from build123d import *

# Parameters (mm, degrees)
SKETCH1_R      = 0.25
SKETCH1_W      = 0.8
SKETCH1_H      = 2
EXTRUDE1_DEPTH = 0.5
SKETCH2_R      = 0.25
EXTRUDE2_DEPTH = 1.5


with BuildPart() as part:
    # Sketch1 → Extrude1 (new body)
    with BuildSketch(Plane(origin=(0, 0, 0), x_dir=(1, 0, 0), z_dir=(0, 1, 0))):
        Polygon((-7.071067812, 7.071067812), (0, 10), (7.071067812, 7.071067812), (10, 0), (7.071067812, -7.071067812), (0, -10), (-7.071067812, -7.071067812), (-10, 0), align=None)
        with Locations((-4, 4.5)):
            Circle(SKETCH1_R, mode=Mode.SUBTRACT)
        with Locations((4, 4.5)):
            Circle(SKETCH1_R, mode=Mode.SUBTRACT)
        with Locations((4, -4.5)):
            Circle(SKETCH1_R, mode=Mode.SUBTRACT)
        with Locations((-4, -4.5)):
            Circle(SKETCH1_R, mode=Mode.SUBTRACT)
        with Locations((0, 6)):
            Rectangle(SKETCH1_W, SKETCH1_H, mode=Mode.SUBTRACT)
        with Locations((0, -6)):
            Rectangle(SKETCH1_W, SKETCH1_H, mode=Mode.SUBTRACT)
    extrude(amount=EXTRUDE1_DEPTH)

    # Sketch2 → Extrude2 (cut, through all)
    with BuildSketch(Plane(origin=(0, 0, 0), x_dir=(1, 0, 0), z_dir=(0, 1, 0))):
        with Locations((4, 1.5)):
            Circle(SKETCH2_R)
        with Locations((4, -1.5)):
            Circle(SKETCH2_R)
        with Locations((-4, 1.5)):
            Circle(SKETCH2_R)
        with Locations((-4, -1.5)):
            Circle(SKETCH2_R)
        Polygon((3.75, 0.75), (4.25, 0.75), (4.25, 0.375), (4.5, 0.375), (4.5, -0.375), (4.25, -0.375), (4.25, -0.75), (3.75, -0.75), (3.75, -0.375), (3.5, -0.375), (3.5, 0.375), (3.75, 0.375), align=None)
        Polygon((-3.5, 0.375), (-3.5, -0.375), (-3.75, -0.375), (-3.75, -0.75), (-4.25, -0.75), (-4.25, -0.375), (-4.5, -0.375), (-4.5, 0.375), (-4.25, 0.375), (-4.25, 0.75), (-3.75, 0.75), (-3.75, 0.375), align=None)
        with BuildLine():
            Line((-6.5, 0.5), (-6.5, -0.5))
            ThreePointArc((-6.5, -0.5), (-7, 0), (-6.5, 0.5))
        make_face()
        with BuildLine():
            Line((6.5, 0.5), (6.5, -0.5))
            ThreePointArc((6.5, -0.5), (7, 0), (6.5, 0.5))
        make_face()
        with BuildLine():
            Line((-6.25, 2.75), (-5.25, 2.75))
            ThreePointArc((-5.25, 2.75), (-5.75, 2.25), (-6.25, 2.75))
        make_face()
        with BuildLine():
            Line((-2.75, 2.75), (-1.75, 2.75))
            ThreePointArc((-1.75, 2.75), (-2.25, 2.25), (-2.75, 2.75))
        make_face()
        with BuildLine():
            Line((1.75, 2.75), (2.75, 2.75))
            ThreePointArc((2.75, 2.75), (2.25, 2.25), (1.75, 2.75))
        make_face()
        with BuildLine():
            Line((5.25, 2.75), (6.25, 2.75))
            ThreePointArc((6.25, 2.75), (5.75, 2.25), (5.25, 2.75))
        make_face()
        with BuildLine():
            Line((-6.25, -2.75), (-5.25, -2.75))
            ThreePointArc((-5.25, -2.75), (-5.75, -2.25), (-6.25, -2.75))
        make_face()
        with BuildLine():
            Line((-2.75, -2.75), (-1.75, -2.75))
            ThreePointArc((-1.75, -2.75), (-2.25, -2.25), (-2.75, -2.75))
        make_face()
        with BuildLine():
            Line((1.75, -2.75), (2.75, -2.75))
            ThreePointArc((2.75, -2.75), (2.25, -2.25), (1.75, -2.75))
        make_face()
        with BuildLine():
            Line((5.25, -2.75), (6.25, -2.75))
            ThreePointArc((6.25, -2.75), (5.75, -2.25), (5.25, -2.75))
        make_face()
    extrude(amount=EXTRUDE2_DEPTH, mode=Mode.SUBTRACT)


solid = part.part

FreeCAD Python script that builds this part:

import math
import FreeCAD as App
import Part
import Sketcher
from FreeCAD import Vector
Q = App.Units.Quantity


def add_polygon(sketch, points):
    """Adds a closed chain of lines whose ends are joined by coincident constraints."""
    first, n = sketch.GeometryCount, len(points)
    for a, b in zip(points, points[1:] + points[:1]):
        sketch.addGeometry(Part.LineSegment(App.Vector(*a, 0), App.Vector(*b, 0)), False)
    for i in range(n):
        sketch.addConstraint(Sketcher.Constraint("Coincident", first + i, 2, first + (i + 1) % n, 1))

doc = App.newDocument("Part")
body = doc.addObject("PartDesign::Body", "Body")

# Sketch on XZ plane
sketch1 = doc.addObject("Sketcher::SketchObject", "Sketch")
body.addObject(sketch1)
sketch1.AttachmentSupport = (doc.XZ_Plane, [""])
sketch1.MapMode = "FlatFace"
add_polygon(sketch1, [(0, -10), (-7.07, -7.07), (-10, 0), (-7.07, 7.07), (0, 10), (7.07, 7.07), (10, 0), (7.07, -7.07)])  # lines 0-7
sketch1.addGeometry(Part.Circle(Vector(4, 4.5, 0), Vector(0, 0, 1), 0.25), False)  # 8
add_polygon(sketch1, [(-0.4, 7), (-0.4, 5), (0.4, 5), (0.4, 7)])  # lines 9-12
sketch1.addGeometry(Part.Circle(Vector(-4, 4.5, 0), Vector(0, 0, 1), 0.25), False)  # 13
sketch1.addGeometry(Part.Circle(Vector(4, -4.5, 0), Vector(0, 0, 1), 0.25), False)  # 14
add_polygon(sketch1, [(-0.4, -5), (-0.4, -7), (0.4, -7), (0.4, -5)])  # lines 15-18
sketch1.addGeometry(Part.Circle(Vector(-4, -4.5, 0), Vector(0, 0, 1), 0.25), False)  # 19
sketch1.addConstraint(Sketcher.Constraint("Vertical", 9))
sketch1.addConstraint(Sketcher.Constraint("Horizontal", 10))
sketch1.addConstraint(Sketcher.Constraint("Vertical", 11))
sketch1.addConstraint(Sketcher.Constraint("Horizontal", 12))
sketch1.addConstraint(Sketcher.Constraint("Vertical", 15))
sketch1.addConstraint(Sketcher.Constraint("Horizontal", 16))
sketch1.addConstraint(Sketcher.Constraint("Vertical", 17))
sketch1.addConstraint(Sketcher.Constraint("Horizontal", 18))
sketch1.addConstraint(Sketcher.Constraint("Equal", 8, 13))
sketch1.addConstraint(Sketcher.Constraint("Equal", 13, 14))
sketch1.addConstraint(Sketcher.Constraint("Equal", 14, 19))
sketch1.addConstraint(Sketcher.Constraint("Symmetric", 13, 3, 14, 3, -1, 1))
sketch1.addConstraint(Sketcher.Constraint("Symmetric", 8, 3, 19, 3, -1, 1))
sketch1.addConstraint(Sketcher.Constraint("Symmetric", 0, 2, 4, 2, -1, 1))
sketch1.addConstraint(Sketcher.Constraint("Symmetric", 1, 2, 5, 2, -1, 1))
sketch1.addConstraint(Sketcher.Constraint("Symmetric", 2, 2, 6, 2, -1, 1))
sketch1.addConstraint(Sketcher.Constraint("Symmetric", 3, 2, 7, 2, -1, 1))
sketch1.addConstraint(Sketcher.Constraint("Symmetric", 11, 2, 15, 2, -1, 1))
sketch1.addConstraint(Sketcher.Constraint("Symmetric", 9, 2, 17, 2, -1, 1))
sketch1.addConstraint(Sketcher.Constraint("Symmetric", 8, 3, 13, 3, -2))
sketch1.addConstraint(Sketcher.Constraint("Symmetric", 2, 2, 4, 2, -2))
sketch1.addConstraint(Sketcher.Constraint("PointOnObject", 1, 2, -1))
sketch1.addConstraint(Sketcher.Constraint("PointOnObject", 3, 2, -2))
sketch1.addConstraint(Sketcher.Constraint("Perpendicular", 0, 2))
sketch1.addConstraint(Sketcher.Constraint("Vertical", 12, 2, 15, 2))
sketch1.addConstraint(Sketcher.Constraint("Equal", 0, 1))
sketch1.addConstraint(Sketcher.Constraint("Diameter", 8, Q("0.5 mm")))
sketch1.addConstraint(Sketcher.Constraint("DistanceY", 9, 2, 9, 1, Q("2 mm")))
sketch1.addConstraint(Sketcher.Constraint("DistanceX", 10, 1, 10, 2, Q("0.8 mm")))
sketch1.addConstraint(Sketcher.Constraint("DistanceX", -1, 1, 8, 3, Q("4 mm")))
sketch1.addConstraint(Sketcher.Constraint("DistanceX", 1, 2, -1, 1, Q("10 mm")))
sketch1.addConstraint(Sketcher.Constraint("DistanceY", -1, 1, 9, 2, Q("5 mm")))
sketch1.addConstraint(Sketcher.Constraint("Angle", 0, Q("157.5 deg")))
sketch1.addConstraint(Sketcher.Constraint("DistanceY", 14, 3, 8, 3, Q("9 mm")))
pad1 = doc.addObject("PartDesign::Pad", "Pad")
body.addObject(pad1)
pad1.Profile = sketch1
pad1.Length = 0.5
pad1.Reversed = True

# Sketch on XZ plane
sketch2 = doc.addObject("Sketcher::SketchObject", "Sketch001")
body.addObject(sketch2)
sketch2.AttachmentSupport = (doc.XZ_Plane, [""])
sketch2.MapMode = "FlatFace"
sketch2.addGeometry(Part.Circle(Vector(4, -1.5, 0), Vector(0, 0, 1), 0.25), False)  # 0
sketch2.addGeometry(Part.Circle(Vector(4, 1.5, 0), Vector(0, 0, 1), 0.25), False)  # 1
sketch2.addGeometry(Part.Circle(Vector(-4, -1.5, 0), Vector(0, 0, 1), 0.25), False)  # 2
sketch2.addGeometry(Part.Circle(Vector(-4, 1.5, 0), Vector(0, 0, 1), 0.25), False)  # 3
add_polygon(sketch2, [(4.25, -0.75), (3.75, -0.75), (3.75, -0.38), (3.5, -0.38), (3.5, 0.38), (3.75, 0.38), (3.75, 0.75), (4.25, 0.75), (4.25, 0.38), (4.5, 0.38), (4.5, -0.38), (4.25, -0.38)])  # lines 4-15
add_polygon(sketch2, [(-3.5, 0.38), (-3.5, -0.38), (-3.75, -0.38), (-3.75, -0.75), (-4.25, -0.75), (-4.25, -0.38), (-4.5, -0.38), (-4.5, 0.38), (-4.25, 0.38), (-4.25, 0.75), (-3.75, 0.75), (-3.75, 0.38)])  # lines 16-27
sketch2.addGeometry(Part.LineSegment(Vector(-6.5, 0.5, 0), Vector(-6.5, -0.5, 0)), False)  # 28
sketch2.addGeometry(Part.ArcOfCircle(Part.Circle(Vector(-6.5, 0, 0), Vector(0, 0, 1), 0.5), math.radians(90), math.radians(270)), False)  # 29
sketch2.addGeometry(Part.LineSegment(Vector(6.5, -0.5, 0), Vector(6.5, 0.5, 0)), False)  # 30
sketch2.addGeometry(Part.ArcOfCircle(Part.Circle(Vector(6.5, 0, 0), Vector(0, 0, 1), 0.5), math.radians(-90), math.radians(90)), False)  # 31
sketch2.addGeometry(Part.LineSegment(Vector(-5.25, -2.75, 0), Vector(-6.25, -2.75, 0)), False)  # 32
sketch2.addGeometry(Part.ArcOfCircle(Part.Circle(Vector(-5.75, -2.75, 0), Vector(0, 0, 1), 0.5), math.radians(0), math.radians(180)), False)  # 33
sketch2.addGeometry(Part.LineSegment(Vector(-1.75, -2.75, 0), Vector(-2.75, -2.75, 0)), False)  # 34
sketch2.addGeometry(Part.ArcOfCircle(Part.Circle(Vector(-2.25, -2.75, 0), Vector(0, 0, 1), 0.5), math.radians(0), math.radians(180)), False)  # 35
sketch2.addGeometry(Part.LineSegment(Vector(2.75, -2.75, 0), Vector(1.75, -2.75, 0)), False)  # 36
sketch2.addGeometry(Part.ArcOfCircle(Part.Circle(Vector(2.25, -2.75, 0), Vector(0, 0, 1), 0.5), math.radians(0), math.radians(180)), False)  # 37
sketch2.addGeometry(Part.LineSegment(Vector(6.25, -2.75, 0), Vector(5.25, -2.75, 0)), False)  # 38
sketch2.addGeometry(Part.ArcOfCircle(Part.Circle(Vector(5.75, -2.75, 0), Vector(0, 0, 1), 0.5), math.radians(0), math.radians(180)), False)  # 39
sketch2.addGeometry(Part.LineSegment(Vector(-6.25, 2.75, 0), Vector(-5.25, 2.75, 0)), False)  # 40
sketch2.addGeometry(Part.ArcOfCircle(Part.Circle(Vector(-5.75, 2.75, 0), Vector(0, 0, 1), 0.5), math.radians(180), math.radians(360)), False)  # 41
sketch2.addGeometry(Part.LineSegment(Vector(-2.75, 2.75, 0), Vector(-1.75, 2.75, 0)), False)  # 42
sketch2.addGeometry(Part.ArcOfCircle(Part.Circle(Vector(-2.25, 2.75, 0), Vector(0, 0, 1), 0.5), math.radians(180), math.radians(360)), False)  # 43
sketch2.addGeometry(Part.LineSegment(Vector(1.75, 2.75, 0), Vector(2.75, 2.75, 0)), False)  # 44
sketch2.addGeometry(Part.ArcOfCircle(Part.Circle(Vector(2.25, 2.75, 0), Vector(0, 0, 1), 0.5), math.radians(180), math.radians(360)), False)  # 45
sketch2.addGeometry(Part.LineSegment(Vector(5.25, 2.75, 0), Vector(6.25, 2.75, 0)), False)  # 46
sketch2.addGeometry(Part.ArcOfCircle(Part.Circle(Vector(5.75, 2.75, 0), Vector(0, 0, 1), 0.5), math.radians(180), math.radians(360)), False)  # 47
sketch2.addConstraint(Sketcher.Constraint("Coincident", 28, 1, 29, 1))
sketch2.addConstraint(Sketcher.Constraint("Coincident", 29, 2, 28, 2))
sketch2.addConstraint(Sketcher.Constraint("Coincident", 30, 1, 31, 1))
sketch2.addConstraint(Sketcher.Constraint("Coincident", 31, 2, 30, 2))
sketch2.addConstraint(Sketcher.Constraint("Coincident", 32, 1, 33, 1))
sketch2.addConstraint(Sketcher.Constraint("Coincident", 33, 2, 32, 2))
sketch2.addConstraint(Sketcher.Constraint("Coincident", 34, 1, 35, 1))
sketch2.addConstraint(Sketcher.Constraint("Coincident", 35, 2, 34, 2))
sketch2.addConstraint(Sketcher.Constraint("Coincident", 36, 1, 37, 1))
sketch2.addConstraint(Sketcher.Constraint("Coincident", 37, 2, 36, 2))
sketch2.addConstraint(Sketcher.Constraint("Coincident", 38, 1, 39, 1))
sketch2.addConstraint(Sketcher.Constraint("Coincident", 39, 2, 38, 2))
sketch2.addConstraint(Sketcher.Constraint("Coincident", 40, 1, 41, 1))
sketch2.addConstraint(Sketcher.Constraint("Coincident", 41, 2, 40, 2))
sketch2.addConstraint(Sketcher.Constraint("Coincident", 42, 1, 43, 1))
sketch2.addConstraint(Sketcher.Constraint("Coincident", 43, 2, 42, 2))
sketch2.addConstraint(Sketcher.Constraint("Coincident", 44, 1, 45, 1))
sketch2.addConstraint(Sketcher.Constraint("Coincident", 45, 2, 44, 2))
sketch2.addConstraint(Sketcher.Constraint("Coincident", 46, 1, 47, 1))
sketch2.addConstraint(Sketcher.Constraint("Coincident", 47, 2, 46, 2))
sketch2.addConstraint(Sketcher.Constraint("Horizontal", 4))
sketch2.addConstraint(Sketcher.Constraint("Vertical", 5))
sketch2.addConstraint(Sketcher.Constraint("Horizontal", 6))
sketch2.addConstraint(Sketcher.Constraint("Vertical", 7))
sketch2.addConstraint(Sketcher.Constraint("Horizontal", 8))
sketch2.addConstraint(Sketcher.Constraint("Vertical", 9))
sketch2.addConstraint(Sketcher.Constraint("Horizontal", 10))
sketch2.addConstraint(Sketcher.Constraint("Vertical", 11))
sketch2.addConstraint(Sketcher.Constraint("Horizontal", 12))
sketch2.addConstraint(Sketcher.Constraint("Vertical", 13))
sketch2.addConstraint(Sketcher.Constraint("Horizontal", 14))
sketch2.addConstraint(Sketcher.Constraint("Vertical", 15))
sketch2.addConstraint(Sketcher.Constraint("Vertical", 16))
sketch2.addConstraint(Sketcher.Constraint("Horizontal", 17))
sketch2.addConstraint(Sketcher.Constraint("Vertical", 18))
sketch2.addConstraint(Sketcher.Constraint("Horizontal", 19))
sketch2.addConstraint(Sketcher.Constraint("Vertical", 20))
sketch2.addConstraint(Sketcher.Constraint("Horizontal", 21))
sketch2.addConstraint(Sketcher.Constraint("Vertical", 22))
sketch2.addConstraint(Sketcher.Constraint("Horizontal", 23))
sketch2.addConstraint(Sketcher.Constraint("Vertical", 24))
sketch2.addConstraint(Sketcher.Constraint("Horizontal", 25))
sketch2.addConstraint(Sketcher.Constraint("Vertical", 26))
sketch2.addConstraint(Sketcher.Constraint("Horizontal", 27))
sketch2.addConstraint(Sketcher.Constraint("Vertical", 28))
sketch2.addConstraint(Sketcher.Constraint("Vertical", 30))
sketch2.addConstraint(Sketcher.Constraint("Horizontal", 32))
sketch2.addConstraint(Sketcher.Constraint("Horizontal", 34))
sketch2.addConstraint(Sketcher.Constraint("Horizontal", 36))
sketch2.addConstraint(Sketcher.Constraint("Horizontal", 38))
sketch2.addConstraint(Sketcher.Constraint("Horizontal", 40))
sketch2.addConstraint(Sketcher.Constraint("Horizontal", 42))
sketch2.addConstraint(Sketcher.Constraint("Horizontal", 44))
sketch2.addConstraint(Sketcher.Constraint("Horizontal", 46))
sketch2.addConstraint(Sketcher.Constraint("Equal", 0, 1))
sketch2.addConstraint(Sketcher.Constraint("Equal", 1, 2))
sketch2.addConstraint(Sketcher.Constraint("Equal", 2, 3))
sketch2.addConstraint(Sketcher.Constraint("Equal", 29, 31))
sketch2.addConstraint(Sketcher.Constraint("Equal", 31, 33))
sketch2.addConstraint(Sketcher.Constraint("Equal", 33, 35))
sketch2.addConstraint(Sketcher.Constraint("Equal", 35, 37))
sketch2.addConstraint(Sketcher.Constraint("Equal", 37, 39))
sketch2.addConstraint(Sketcher.Constraint("Equal", 39, 41))
sketch2.addConstraint(Sketcher.Constraint("Equal", 41, 43))
sketch2.addConstraint(Sketcher.Constraint("Equal", 43, 45))
sketch2.addConstraint(Sketcher.Constraint("Equal", 45, 47))
sketch2.addConstraint(Sketcher.Constraint("Symmetric", 1, 3, 2, 3, -1, 1))
sketch2.addConstraint(Sketcher.Constraint("Symmetric", 0, 3, 3, 3, -1, 1))
sketch2.addConstraint(Sketcher.Constraint("Symmetric", 29, 3, 31, 3, -1, 1))
sketch2.addConstraint(Sketcher.Constraint("Symmetric", 39, 3, 41, 3, -1, 1))
sketch2.addConstraint(Sketcher.Constraint("Symmetric", 37, 3, 43, 3, -1, 1))
sketch2.addConstraint(Sketcher.Constraint("Symmetric", 35, 3, 45, 3, -1, 1))
sketch2.addConstraint(Sketcher.Constraint("Symmetric", 33, 3, 47, 3, -1, 1))
sketch2.addConstraint(Sketcher.Constraint("Symmetric", 7, 2, 16, 2, -1, 1))
sketch2.addConstraint(Sketcher.Constraint("Symmetric", 9, 2, 18, 2, -1, 1))
sketch2.addConstraint(Sketcher.Constraint("Symmetric", 11, 2, 20, 2, -1, 1))
sketch2.addConstraint(Sketcher.Constraint("Symmetric", 13, 2, 22, 2, -1, 1))
sketch2.addConstraint(Sketcher.Constraint("Symmetric", 15, 2, 24, 2, -1, 1))
sketch2.addConstraint(Sketcher.Constraint("Symmetric", 5, 2, 26, 2, -1, 1))
sketch2.addConstraint(Sketcher.Constraint("Symmetric", 0, 3, 2, 3, -2))
sketch2.addConstraint(Sketcher.Constraint("Symmetric", 35, 3, 37, 3, -2))
sketch2.addConstraint(Sketcher.Constraint("Symmetric", 33, 3, 39, 3, -2))
sketch2.addConstraint(Sketcher.Constraint("Symmetric", 5, 2, 17, 2, -2))
sketch2.addConstraint(Sketcher.Constraint("Symmetric", 15, 2, 19, 2, -2))
sketch2.addConstraint(Sketcher.Constraint("Symmetric", 29, 2, 30, 1, -2))
sketch2.addConstraint(Sketcher.Constraint("Horizontal", 33, 3, 35, 3))
sketch2.addConstraint(Sketcher.Constraint("Horizontal", 8, 2, 11, 2))
sketch2.addConstraint(Sketcher.Constraint("Horizontal", 6, 2, 13, 2))
sketch2.addConstraint(Sketcher.Constraint("Horizontal", 39, 3, 32, 1))
sketch2.addConstraint(Sketcher.Constraint("Horizontal", 33, 2, 34, 1))
sketch2.addConstraint(Sketcher.Constraint("Horizontal", 35, 2, 36, 1))
sketch2.addConstraint(Sketcher.Constraint("Horizontal", 37, 2, 38, 1))
sketch2.addConstraint(Sketcher.Constraint("Horizontal", 47, 3, 40, 1))
sketch2.addConstraint(Sketcher.Constraint("Horizontal", 41, 2, 42, 1))
sketch2.addConstraint(Sketcher.Constraint("Horizontal", 43, 2, 44, 1))
sketch2.addConstraint(Sketcher.Constraint("Horizontal", 45, 2, 46, 1))
sketch2.addConstraint(Sketcher.Constraint("Vertical", 29, 3, 28, 1))
sketch2.addConstraint(Sketcher.Constraint("Equal", 8, 12))
sketch2.addConstraint(Sketcher.Constraint("Diameter", 0, Q("0.5 mm")))
sketch2.addConstraint(Sketcher.Constraint("Radius", 29, Q("0.5 mm")))
sketch2.addConstraint(Sketcher.Constraint("DistanceX", 4, 2, 4, 1, Q("0.5 mm")))
sketch2.addConstraint(Sketcher.Constraint("DistanceX", -1, 1, 0, 3, Q("4 mm")))
sketch2.addConstraint(Sketcher.Constraint("DistanceY", 0, 3, 1, 3, Q("3 mm")))
sketch2.addConstraint(Sketcher.Constraint("DistanceX", 29, 3, 31, 3, Q("13 mm")))
sketch2.addConstraint(Sketcher.Constraint("DistanceX", 35, 3, 39, 3, Q("8 mm")))
sketch2.addConstraint(Sketcher.Constraint("DistanceY", 37, 3, 4, 2, Q("2 mm")))
sketch2.addConstraint(Sketcher.Constraint("DistanceX", 4, 2, 39, 3, Q("2 mm")))
sketch2.addConstraint(Sketcher.Constraint("DistanceX", 7, 2, 12, 2, Q("1 mm")))
sketch2.addConstraint(Sketcher.Constraint("DistanceX", 29, 3, 16, 2, Q("3 mm")))
sketch2.addConstraint(Sketcher.Constraint("DistanceY", 7, 1, 7, 2, Q("0.75 mm")))
sketch2.addConstraint(Sketcher.Constraint("DistanceY", 33, 3, 41, 3, Q("5.5 mm")))
pocket1 = doc.addObject("PartDesign::Pocket", "Pocket")
body.addObject(pocket1)
pocket1.Profile = sketch2
pocket1.Type = "ThroughAll"

doc.recompute()
